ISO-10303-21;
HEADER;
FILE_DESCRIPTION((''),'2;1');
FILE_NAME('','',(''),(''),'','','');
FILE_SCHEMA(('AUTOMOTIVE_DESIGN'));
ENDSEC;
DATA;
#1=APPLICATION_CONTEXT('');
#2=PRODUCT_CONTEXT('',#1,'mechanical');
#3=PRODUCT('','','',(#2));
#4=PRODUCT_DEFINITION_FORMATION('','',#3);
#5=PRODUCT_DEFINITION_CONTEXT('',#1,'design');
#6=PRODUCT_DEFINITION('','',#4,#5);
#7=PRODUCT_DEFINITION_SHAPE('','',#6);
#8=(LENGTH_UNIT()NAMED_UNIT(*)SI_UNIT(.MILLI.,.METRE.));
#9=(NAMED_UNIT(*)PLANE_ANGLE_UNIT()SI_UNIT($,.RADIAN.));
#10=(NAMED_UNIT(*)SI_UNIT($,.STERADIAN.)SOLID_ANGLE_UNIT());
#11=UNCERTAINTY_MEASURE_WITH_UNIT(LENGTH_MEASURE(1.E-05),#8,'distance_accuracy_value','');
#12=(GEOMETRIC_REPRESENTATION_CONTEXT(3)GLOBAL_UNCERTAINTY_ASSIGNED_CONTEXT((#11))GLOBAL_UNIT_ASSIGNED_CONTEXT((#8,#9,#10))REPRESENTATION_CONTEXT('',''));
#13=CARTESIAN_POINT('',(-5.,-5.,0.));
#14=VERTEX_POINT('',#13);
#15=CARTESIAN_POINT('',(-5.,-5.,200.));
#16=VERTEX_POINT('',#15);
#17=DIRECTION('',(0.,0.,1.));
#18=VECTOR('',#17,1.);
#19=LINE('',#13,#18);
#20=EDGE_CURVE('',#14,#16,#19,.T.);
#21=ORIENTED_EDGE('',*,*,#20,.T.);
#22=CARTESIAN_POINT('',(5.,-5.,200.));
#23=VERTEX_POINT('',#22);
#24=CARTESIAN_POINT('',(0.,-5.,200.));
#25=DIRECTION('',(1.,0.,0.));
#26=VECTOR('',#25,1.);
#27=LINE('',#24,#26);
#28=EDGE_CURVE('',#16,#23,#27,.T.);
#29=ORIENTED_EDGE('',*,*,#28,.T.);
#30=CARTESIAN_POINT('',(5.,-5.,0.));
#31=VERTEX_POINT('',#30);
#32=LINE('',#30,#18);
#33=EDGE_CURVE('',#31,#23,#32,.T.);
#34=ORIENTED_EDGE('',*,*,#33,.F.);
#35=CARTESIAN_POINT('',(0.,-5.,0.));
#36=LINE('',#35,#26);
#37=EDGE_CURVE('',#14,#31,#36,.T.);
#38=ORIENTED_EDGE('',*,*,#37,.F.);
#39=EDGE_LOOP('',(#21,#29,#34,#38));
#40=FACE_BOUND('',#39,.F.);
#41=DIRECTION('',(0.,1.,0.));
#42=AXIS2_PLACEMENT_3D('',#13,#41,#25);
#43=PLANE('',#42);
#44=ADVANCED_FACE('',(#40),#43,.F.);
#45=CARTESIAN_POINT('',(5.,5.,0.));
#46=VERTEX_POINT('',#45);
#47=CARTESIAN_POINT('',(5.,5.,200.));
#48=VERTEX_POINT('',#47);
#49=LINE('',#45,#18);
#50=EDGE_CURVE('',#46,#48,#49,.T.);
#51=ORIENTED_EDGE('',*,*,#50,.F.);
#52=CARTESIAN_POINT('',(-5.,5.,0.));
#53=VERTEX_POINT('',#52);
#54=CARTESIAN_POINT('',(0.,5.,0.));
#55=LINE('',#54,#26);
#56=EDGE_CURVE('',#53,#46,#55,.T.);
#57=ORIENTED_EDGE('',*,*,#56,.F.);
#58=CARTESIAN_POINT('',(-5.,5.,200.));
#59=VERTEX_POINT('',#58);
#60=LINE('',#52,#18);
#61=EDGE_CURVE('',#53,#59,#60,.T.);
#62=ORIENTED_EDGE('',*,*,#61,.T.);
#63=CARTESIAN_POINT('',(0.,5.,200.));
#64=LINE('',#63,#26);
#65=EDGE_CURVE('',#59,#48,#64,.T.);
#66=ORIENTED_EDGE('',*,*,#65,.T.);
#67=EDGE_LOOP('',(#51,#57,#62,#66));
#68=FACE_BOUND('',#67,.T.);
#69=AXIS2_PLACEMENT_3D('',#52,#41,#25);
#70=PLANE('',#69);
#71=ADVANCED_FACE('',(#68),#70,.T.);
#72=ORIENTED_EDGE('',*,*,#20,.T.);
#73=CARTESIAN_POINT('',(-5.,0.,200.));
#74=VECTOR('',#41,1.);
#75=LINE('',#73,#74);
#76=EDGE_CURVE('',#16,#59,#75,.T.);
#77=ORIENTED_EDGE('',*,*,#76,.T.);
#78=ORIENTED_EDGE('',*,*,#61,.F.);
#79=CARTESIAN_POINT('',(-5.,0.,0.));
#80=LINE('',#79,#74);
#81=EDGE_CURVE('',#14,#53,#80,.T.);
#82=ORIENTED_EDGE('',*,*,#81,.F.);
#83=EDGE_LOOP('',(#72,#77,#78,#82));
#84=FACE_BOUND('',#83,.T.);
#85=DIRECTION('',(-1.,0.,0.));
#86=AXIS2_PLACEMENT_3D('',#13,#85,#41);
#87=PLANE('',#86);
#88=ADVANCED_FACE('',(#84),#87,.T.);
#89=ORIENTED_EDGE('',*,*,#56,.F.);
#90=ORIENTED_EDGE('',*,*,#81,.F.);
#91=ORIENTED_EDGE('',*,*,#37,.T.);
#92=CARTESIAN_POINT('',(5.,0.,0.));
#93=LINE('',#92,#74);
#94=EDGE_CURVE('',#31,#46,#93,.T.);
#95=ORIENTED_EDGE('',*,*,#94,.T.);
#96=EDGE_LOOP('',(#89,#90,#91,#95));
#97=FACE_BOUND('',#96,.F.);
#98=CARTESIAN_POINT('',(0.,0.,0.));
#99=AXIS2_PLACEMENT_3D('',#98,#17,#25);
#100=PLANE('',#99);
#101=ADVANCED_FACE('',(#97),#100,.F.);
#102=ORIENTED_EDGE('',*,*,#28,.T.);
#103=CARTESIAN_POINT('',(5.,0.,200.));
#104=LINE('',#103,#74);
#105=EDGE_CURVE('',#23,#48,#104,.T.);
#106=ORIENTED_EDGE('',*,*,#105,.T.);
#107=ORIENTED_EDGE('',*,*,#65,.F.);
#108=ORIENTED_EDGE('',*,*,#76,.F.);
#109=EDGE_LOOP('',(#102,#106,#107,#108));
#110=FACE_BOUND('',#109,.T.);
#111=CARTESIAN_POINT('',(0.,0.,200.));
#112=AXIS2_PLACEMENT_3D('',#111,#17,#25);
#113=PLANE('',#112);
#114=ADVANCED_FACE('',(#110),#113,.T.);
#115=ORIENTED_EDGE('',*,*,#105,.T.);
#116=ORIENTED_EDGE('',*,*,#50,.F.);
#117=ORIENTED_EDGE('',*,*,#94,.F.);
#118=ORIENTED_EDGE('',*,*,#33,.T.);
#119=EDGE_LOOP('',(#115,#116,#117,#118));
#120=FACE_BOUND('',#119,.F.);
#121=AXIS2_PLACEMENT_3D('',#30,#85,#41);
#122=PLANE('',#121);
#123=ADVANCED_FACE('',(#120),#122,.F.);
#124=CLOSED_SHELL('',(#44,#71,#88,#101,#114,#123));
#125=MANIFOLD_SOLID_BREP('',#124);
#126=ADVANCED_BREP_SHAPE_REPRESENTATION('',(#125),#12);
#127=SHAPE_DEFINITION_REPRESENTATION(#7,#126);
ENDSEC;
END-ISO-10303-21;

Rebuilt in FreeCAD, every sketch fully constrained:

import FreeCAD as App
import Part
import Sketcher

V = App.Vector


def add_polygon(sketch, points):
    """Adds a closed chain of lines whose ends are joined by coincident constraints."""
    first, n = sketch.GeometryCount, len(points)
    for a, b in zip(points, points[1:] + points[:1]):
        sketch.addGeometry(Part.LineSegment(App.Vector(*a, 0), App.Vector(*b, 0)), False)
    for i in range(n):
        sketch.addConstraint(Sketcher.Constraint("Coincident", first + i, 2, first + (i + 1) % n, 1))

doc = App.newDocument("Part")
body = doc.addObject("PartDesign::Body", "Body")

sketch1 = body.newObject("Sketcher::SketchObject", "Sketch")
sketch1.AttachmentSupport = (doc.getObject("XY_Plane"), [""])
sketch1.MapMode = "FlatFace"
add_polygon(sketch1, [(-5, 5), (-5, -5), (5, -5), (5, 5)])
sketch1.addConstraint([
    Sketcher.Constraint("Vertical", 0),
    Sketcher.Constraint("Horizontal", 1),
    Sketcher.Constraint("Vertical", 2),
    Sketcher.Constraint("Horizontal", 3),
    Sketcher.Constraint("Symmetric", 0, 2, 2, 2, -1, 1),
    Sketcher.Constraint("Equal", 3, 0),
    Sketcher.Constraint("DistanceX", 1, 1, 1, 2, 10.0),
])
pad1 = body.newObject("PartDesign::Pad", "Pad")
pad1.Profile = sketch1
pad1.Length = 200

doc.recompute()
